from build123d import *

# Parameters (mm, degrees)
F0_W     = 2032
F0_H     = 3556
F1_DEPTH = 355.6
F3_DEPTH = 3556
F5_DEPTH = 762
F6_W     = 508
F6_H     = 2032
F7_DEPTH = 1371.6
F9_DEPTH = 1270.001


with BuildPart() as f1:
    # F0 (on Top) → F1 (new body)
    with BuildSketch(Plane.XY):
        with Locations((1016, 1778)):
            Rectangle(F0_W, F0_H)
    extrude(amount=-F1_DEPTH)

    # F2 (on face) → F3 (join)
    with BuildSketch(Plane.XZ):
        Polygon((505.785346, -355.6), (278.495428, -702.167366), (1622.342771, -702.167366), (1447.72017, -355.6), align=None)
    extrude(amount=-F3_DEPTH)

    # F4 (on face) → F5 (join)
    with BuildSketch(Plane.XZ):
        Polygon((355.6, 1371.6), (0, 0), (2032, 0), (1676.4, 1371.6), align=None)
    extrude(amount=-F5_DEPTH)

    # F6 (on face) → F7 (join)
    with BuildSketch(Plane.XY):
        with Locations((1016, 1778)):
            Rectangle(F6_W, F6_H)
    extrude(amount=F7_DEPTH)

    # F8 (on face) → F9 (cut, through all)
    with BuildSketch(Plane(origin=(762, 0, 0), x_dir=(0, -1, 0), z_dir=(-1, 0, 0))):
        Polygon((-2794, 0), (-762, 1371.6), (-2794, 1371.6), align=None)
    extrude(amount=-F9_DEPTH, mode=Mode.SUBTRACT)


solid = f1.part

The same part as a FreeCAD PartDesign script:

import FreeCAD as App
import Part
import Sketcher
Q = App.Units.Quantity


def add_polygon(sketch, points):
    """Adds a closed chain of lines whose ends are joined by coincident constraints."""
    first, n = sketch.GeometryCount, len(points)
    for a, b in zip(points, points[1:] + points[:1]):
        sketch.addGeometry(Part.LineSegment(App.Vector(*a, 0), App.Vector(*b, 0)), False)
    for i in range(n):
        sketch.addConstraint(Sketcher.Constraint("Coincident", first + i, 2, first + (i + 1) % n, 1))

doc = App.newDocument("Part")
body = doc.addObject("PartDesign::Body", "Body")

# Sketch on XY plane
sketch1 = body.newObject("Sketcher::SketchObject", "Sketch")
sketch1.AttachmentSupport = (doc.getObject("XY_Plane"), [""])
sketch1.MapMode = "FlatFace"
add_polygon(sketch1, [(0, 3556), (0, 0), (2032, 0), (2032, 3556)])  # lines 0-3
sketch1.addConstraint(Sketcher.Constraint("Vertical", 0))
sketch1.addConstraint(Sketcher.Constraint("Horizontal", 1))
sketch1.addConstraint(Sketcher.Constraint("Vertical", 2))
sketch1.addConstraint(Sketcher.Constraint("Horizontal", 3))
sketch1.addConstraint(Sketcher.Constraint("Coincident", 0, 2, -1, 1))
sketch1.addConstraint(Sketcher.Constraint("DistanceX", 1, 1, 1, 2, Q("80 in")))
sketch1.addConstraint(Sketcher.Constraint("DistanceY", 0, 2, 0, 1, Q("140 in")))
pad1 = body.newObject("PartDesign::Pad", "Pad")
pad1.Profile = sketch1
pad1.Length = Q("14 in")
pad1.Reversed = True

# Sketch on XZ plane
sketch2 = body.newObject("Sketcher::SketchObject", "Sketch001")
sketch2.AttachmentSupport = (doc.getObject("XZ_Plane"), [""])
sketch2.MapMode = "FlatFace"
add_polygon(sketch2, [(506, -356), (278, -702), (1622, -702), (1448, -356)])  # lines 0-3
sketch2.addConstraint(Sketcher.Constraint("Horizontal", 1))
sketch2.addConstraint(Sketcher.Constraint("Horizontal", 3))
sketch2.addConstraint(Sketcher.Constraint("DistanceY", 2, 2, -1, 1, Q("14 in")))
sketch2.addConstraint(Sketcher.Constraint("DistanceX", 2, 2, 1, 2, Q("174.622601 mm")))
sketch2.addConstraint(Sketcher.Constraint("DistanceX", 1, 1, 1, 2, Q("1343.847343 mm")))
sketch2.addConstraint(Sketcher.Constraint("DistanceX", 3, 2, 3, 1, Q("941.934824 mm")))
sketch2.addConstraint(Sketcher.Constraint("DistanceX", -1, 1, 0, 2, Q("278.495428 mm")))
sketch2.addConstraint(Sketcher.Constraint("Distance", 0, Q("414.451018 mm")))
pad2 = body.newObject("PartDesign::Pad", "Pad001")
pad2.Profile = sketch2
pad2.Length = Q("140 in")
pad2.Reversed = True

# Sketch on XZ plane
sketch3 = body.newObject("Sketcher::SketchObject", "Sketch002")
sketch3.AttachmentSupport = (doc.getObject("XZ_Plane"), [""])
sketch3.MapMode = "FlatFace"
add_polygon(sketch3, [(356, 1372), (0, 0), (2032, 0), (1676, 1372)])  # lines 0-3
sketch3.addConstraint(Sketcher.Constraint("Horizontal", 1))
sketch3.addConstraint(Sketcher.Constraint("Horizontal", 3))
sketch3.addConstraint(Sketcher.Constraint("Coincident", 0, 2, -1, 1))
sketch3.addConstraint(Sketcher.Constraint("Equal", 0, 2))
sketch3.addConstraint(Sketcher.Constraint("DistanceX", 1, 1, 1, 2, Q("80 in")))
sketch3.addConstraint(Sketcher.Constraint("DistanceX", 3, 2, 3, 1, Q("52 in")))
sketch3.addConstraint(Sketcher.Constraint("DistanceY", -1, 1, 2, 2, Q("54 in")))
pad3 = body.newObject("PartDesign::Pad", "Pad002")
pad3.Profile = sketch3
pad3.Length = Q("30 in")
pad3.Reversed = True

# Sketch on XY plane
sketch4 = body.newObject("Sketcher::SketchObject", "Sketch003")
sketch4.AttachmentSupport = (doc.getObject("XY_Plane"), [""])
sketch4.MapMode = "FlatFace"
add_polygon(sketch4, [(762, 2794), (762, 762), (1270, 762), (1270, 2794)])  # lines 0-3
sketch4.addConstraint(Sketcher.Constraint("Vertical", 0))
sketch4.addConstraint(Sketcher.Constraint("Horizontal", 1))
sketch4.addConstraint(Sketcher.Constraint("Vertical", 2))
sketch4.addConstraint(Sketcher.Constraint("Horizontal", 3))
sketch4.addConstraint(Sketcher.Constraint("DistanceX", 1, 1, 1, 2, Q("20 in")))
sketch4.addConstraint(Sketcher.Constraint("DistanceY", 0, 2, 0, 1, Q("80 in")))
sketch4.addConstraint(Sketcher.Constraint("DistanceX", -1, 1, 0, 2, Q("30 in")))
sketch4.addConstraint(Sketcher.Constraint("DistanceY", -1, 1, 0, 2, Q("30 in")))
pad4 = body.newObject("PartDesign::Pad", "Pad003")
pad4.Profile = sketch4
pad4.Length = Q("54 in")

# Sketch on YZ plane
sketch5 = body.newObject("Sketcher::SketchObject", "Sketch004")
sketch5.AttachmentSupport = (doc.getObject("YZ_Plane"), [""])
sketch5.MapMode = "FlatFace"
sketch5.AttachmentOffset = App.Placement(App.Vector(0, 0, 30 * 25.4), App.Rotation())
add_polygon(sketch5, [(2794, 0), (762, 1372), (2794, 1372)])  # lines 0-2
sketch5.addConstraint(Sketcher.Constraint("Horizontal", 1))
sketch5.addConstraint(Sketcher.Constraint("Vertical", 2))
sketch5.addConstraint(Sketcher.Constraint("PointOnObject", 2, 2, -1))
sketch5.addConstraint(Sketcher.Constraint("DistanceX", 1, 1, 1, 2, Q("80 in")))
sketch5.addConstraint(Sketcher.Constraint("DistanceY", 2, 2, 2, 1, Q("54 in")))
sketch5.addConstraint(Sketcher.Constraint("DistanceX", -1, 1, 0, 2, Q("30 in")))
pocket1 = body.newObject("PartDesign::Pocket", "Pocket")
pocket1.Profile = sketch5
pocket1.Type = "ThroughAll"
pocket1.Reversed = True

doc.recompute()
